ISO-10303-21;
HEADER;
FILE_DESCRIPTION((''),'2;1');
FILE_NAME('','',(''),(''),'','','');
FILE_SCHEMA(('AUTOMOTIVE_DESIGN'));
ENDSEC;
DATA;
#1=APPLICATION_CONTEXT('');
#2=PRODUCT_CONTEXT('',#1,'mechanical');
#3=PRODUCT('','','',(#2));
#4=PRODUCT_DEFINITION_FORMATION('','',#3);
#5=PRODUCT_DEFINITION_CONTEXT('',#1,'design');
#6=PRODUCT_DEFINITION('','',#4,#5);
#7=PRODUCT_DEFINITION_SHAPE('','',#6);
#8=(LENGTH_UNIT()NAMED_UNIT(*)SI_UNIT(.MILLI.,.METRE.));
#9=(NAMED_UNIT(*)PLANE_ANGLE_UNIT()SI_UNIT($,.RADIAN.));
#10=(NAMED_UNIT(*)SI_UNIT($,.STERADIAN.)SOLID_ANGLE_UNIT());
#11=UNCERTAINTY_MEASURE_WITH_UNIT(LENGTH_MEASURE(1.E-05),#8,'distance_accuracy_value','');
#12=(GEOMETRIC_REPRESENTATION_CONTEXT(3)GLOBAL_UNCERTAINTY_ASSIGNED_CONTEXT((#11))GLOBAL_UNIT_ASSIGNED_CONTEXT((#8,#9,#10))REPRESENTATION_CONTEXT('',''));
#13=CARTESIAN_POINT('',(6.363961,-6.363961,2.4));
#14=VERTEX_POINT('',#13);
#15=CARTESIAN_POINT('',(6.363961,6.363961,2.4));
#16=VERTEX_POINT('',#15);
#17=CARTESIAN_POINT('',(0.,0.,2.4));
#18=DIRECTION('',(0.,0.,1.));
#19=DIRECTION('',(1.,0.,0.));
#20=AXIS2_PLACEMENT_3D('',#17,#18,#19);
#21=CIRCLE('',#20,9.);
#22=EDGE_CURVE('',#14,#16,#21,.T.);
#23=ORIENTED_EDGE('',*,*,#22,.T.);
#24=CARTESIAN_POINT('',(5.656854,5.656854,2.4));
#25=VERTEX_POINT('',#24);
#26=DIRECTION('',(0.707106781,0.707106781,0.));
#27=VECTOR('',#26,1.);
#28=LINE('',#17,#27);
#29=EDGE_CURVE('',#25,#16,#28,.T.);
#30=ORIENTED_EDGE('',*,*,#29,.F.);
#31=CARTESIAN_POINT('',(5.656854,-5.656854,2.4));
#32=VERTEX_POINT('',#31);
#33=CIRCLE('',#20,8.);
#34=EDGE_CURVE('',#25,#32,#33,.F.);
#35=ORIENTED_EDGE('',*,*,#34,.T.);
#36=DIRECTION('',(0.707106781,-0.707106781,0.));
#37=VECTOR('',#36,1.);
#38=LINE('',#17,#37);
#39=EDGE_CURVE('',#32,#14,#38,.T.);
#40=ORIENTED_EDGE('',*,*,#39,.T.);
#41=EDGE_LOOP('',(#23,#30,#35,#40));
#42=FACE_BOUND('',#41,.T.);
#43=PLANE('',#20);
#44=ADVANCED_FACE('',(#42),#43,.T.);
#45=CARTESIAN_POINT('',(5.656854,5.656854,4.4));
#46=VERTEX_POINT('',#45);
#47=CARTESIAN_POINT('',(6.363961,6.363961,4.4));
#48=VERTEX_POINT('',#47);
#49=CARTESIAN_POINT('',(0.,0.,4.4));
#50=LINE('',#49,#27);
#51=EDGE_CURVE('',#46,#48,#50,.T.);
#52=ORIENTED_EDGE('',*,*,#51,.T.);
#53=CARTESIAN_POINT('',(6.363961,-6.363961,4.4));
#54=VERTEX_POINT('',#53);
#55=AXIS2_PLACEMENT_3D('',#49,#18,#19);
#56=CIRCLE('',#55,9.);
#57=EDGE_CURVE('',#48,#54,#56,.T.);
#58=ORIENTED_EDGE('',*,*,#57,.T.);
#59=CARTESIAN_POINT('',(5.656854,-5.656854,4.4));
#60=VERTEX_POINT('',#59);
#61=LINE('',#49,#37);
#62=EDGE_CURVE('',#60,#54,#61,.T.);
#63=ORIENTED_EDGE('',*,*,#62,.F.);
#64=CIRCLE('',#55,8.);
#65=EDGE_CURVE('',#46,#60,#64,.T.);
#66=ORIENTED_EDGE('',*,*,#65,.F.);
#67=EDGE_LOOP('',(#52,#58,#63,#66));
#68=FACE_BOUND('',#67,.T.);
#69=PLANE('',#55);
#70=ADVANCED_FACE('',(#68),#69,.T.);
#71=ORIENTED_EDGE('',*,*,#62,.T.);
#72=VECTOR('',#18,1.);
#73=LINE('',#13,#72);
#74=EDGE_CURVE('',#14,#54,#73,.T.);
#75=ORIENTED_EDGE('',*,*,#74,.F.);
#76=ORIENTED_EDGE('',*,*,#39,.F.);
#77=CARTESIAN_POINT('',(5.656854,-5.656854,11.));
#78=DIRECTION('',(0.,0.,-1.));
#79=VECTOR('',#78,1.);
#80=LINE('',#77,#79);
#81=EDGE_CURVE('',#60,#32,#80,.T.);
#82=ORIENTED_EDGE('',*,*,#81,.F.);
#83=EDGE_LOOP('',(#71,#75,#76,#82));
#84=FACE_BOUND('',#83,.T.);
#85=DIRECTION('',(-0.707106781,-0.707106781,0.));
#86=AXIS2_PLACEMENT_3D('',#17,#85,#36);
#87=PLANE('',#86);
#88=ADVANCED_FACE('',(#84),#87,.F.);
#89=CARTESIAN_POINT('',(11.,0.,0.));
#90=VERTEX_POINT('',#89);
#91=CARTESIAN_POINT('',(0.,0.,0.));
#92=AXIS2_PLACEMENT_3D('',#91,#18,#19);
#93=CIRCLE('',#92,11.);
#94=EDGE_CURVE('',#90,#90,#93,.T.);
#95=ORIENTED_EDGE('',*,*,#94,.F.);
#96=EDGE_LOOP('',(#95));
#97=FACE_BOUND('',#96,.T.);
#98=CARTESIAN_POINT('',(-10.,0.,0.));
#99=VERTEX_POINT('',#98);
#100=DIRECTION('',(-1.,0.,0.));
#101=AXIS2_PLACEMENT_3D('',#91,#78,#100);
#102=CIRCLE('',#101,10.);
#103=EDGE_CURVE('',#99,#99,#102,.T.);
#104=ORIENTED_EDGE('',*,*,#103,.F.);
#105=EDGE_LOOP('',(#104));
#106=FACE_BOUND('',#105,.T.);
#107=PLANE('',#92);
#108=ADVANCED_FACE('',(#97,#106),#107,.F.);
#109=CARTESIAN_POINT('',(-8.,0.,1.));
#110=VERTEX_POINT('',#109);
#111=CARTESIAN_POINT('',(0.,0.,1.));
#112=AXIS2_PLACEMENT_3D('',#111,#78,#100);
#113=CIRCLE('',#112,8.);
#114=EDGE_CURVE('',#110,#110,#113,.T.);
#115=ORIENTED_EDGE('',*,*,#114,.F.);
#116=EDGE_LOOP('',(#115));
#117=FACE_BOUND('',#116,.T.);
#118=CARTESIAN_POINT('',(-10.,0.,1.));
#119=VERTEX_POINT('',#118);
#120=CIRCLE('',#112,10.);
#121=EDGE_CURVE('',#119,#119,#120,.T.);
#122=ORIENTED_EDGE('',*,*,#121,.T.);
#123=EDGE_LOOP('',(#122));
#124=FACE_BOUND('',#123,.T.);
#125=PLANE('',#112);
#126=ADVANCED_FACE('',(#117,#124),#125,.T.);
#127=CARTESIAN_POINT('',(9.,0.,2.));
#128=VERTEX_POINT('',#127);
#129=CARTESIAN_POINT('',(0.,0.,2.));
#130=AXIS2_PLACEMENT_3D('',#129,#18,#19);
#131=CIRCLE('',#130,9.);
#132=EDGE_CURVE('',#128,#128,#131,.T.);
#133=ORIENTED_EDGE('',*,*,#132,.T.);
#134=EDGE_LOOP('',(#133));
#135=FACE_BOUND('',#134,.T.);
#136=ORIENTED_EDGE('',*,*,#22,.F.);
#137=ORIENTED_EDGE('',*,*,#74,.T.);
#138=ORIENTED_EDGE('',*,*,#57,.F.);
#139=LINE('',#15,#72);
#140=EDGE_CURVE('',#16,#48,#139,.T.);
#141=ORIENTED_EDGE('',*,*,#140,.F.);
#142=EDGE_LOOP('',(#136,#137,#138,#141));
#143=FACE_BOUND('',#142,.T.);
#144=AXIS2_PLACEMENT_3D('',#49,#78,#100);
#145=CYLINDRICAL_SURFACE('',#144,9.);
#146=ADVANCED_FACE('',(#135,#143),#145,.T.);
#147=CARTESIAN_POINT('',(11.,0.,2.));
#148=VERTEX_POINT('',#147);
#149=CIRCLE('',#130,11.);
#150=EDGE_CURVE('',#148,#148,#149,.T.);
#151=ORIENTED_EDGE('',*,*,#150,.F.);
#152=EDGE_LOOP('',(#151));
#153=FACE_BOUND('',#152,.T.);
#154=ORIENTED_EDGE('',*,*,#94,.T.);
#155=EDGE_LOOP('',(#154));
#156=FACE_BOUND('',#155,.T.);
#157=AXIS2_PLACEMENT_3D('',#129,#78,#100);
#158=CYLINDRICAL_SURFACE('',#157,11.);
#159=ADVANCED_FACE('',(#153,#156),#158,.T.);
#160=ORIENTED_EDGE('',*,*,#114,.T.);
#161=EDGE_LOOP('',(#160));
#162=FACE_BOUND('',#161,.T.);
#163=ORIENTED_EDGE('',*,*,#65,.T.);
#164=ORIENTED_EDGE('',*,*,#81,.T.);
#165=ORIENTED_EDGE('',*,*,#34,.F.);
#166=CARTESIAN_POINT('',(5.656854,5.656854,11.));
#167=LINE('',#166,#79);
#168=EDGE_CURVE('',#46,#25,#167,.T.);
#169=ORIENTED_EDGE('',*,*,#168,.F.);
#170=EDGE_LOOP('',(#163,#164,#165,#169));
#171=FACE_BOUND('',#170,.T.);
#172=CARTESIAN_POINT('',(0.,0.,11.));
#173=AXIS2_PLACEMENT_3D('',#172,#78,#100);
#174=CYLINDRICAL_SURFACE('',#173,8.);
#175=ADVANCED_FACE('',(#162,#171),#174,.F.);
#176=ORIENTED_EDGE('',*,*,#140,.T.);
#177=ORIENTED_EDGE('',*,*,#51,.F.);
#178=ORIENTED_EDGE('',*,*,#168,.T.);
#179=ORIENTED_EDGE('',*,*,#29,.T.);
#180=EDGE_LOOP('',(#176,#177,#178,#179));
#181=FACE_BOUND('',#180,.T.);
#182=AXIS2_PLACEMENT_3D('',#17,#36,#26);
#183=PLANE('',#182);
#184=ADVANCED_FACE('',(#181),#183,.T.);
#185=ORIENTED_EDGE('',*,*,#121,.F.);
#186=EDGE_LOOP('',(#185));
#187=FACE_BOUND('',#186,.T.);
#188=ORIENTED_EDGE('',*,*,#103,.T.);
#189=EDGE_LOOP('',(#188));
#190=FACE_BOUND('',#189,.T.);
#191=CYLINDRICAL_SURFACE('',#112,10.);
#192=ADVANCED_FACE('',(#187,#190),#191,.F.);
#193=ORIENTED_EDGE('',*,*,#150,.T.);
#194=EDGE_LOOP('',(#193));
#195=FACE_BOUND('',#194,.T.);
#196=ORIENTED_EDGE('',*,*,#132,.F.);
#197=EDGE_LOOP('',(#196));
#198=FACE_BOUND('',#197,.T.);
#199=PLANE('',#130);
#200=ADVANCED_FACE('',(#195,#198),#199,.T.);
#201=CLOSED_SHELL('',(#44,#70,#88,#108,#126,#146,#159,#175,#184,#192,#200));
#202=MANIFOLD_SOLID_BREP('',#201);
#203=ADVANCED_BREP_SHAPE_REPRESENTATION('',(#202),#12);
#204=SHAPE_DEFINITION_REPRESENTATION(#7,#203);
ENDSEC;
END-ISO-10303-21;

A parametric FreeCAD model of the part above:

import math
import FreeCAD as App
import Part
import Sketcher

V = App.Vector
Q = App.Units.Quantity

doc = App.newDocument("Part")
body = doc.addObject("PartDesign::Body", "Body")

# Sketch on XY plane
sketch1 = body.newObject("Sketcher::SketchObject", "Sketch")
sketch1.AttachmentSupport = (doc.getObject("XY_Plane"), [""])
sketch1.MapMode = "FlatFace"
sketch1.addGeometry(Part.Circle(V(0, 0, 0), V(0, 0, 1), 11), False)
sketch1.addConstraint(Sketcher.Constraint("Coincident", 0, 3, -1, 1))
sketch1.addConstraint(Sketcher.Constraint("Diameter", 0, Q("22 mm")))
pad1 = body.newObject("PartDesign::Pad", "Pad")
pad1.Profile = sketch1
pad1.Length = 2

# Sketch on XY plane
sketch2 = body.newObject("Sketcher::SketchObject", "Sketch001")
sketch2.AttachmentSupport = (doc.getObject("XY_Plane"), [""])
sketch2.MapMode = "FlatFace"
sketch2.AttachmentOffset = App.Placement(V(0, 0, 2), App.Rotation())
sketch2.addGeometry(Part.Circle(V(0, 0, 0), V(0, 0, 1), 9), False)
sketch2.addConstraint(Sketcher.Constraint("Coincident", 0, 3, -1, 1))
sketch2.addConstraint(Sketcher.Constraint("Diameter", 0, Q("18 mm")))
pad2 = body.newObject("PartDesign::Pad", "Pad001")
pad2.Profile = sketch2
pad2.Length = 2.4

# Sketch on XY plane
sketch3 = body.newObject("Sketcher::SketchObject", "Sketch002")
sketch3.AttachmentSupport = (doc.getObject("XY_Plane"), [""])
sketch3.MapMode = "FlatFace"
sketch3.addGeometry(Part.Circle(V(0, 0, 0), V(0, 0, 1), 10), False)
sketch3.addConstraint(Sketcher.Constraint("Coincident", 0, 3, -1, 1))
sketch3.addConstraint(Sketcher.Constraint("Diameter", 0, Q("20 mm")))
pocket1 = body.newObject("PartDesign::Pocket", "Pocket")
pocket1.Profile = sketch3
pocket1.Length = 1
pocket1.Reversed = True

# Sketch on XY plane
sketch4 = body.newObject("Sketcher::SketchObject", "Sketch003")
sketch4.AttachmentSupport = (doc.getObject("XY_Plane"), [""])
sketch4.MapMode = "FlatFace"
sketch4.AttachmentOffset = App.Placement(V(0, 0, 1), App.Rotation())
sketch4.addGeometry(Part.Circle(V(0, 0, 0), V(0, 0, 1), 8), False)
sketch4.addConstraint(Sketcher.Constraint("Coincident", 0, 3, -1, 1))
sketch4.addConstraint(Sketcher.Constraint("Diameter", 0, Q("16 mm")))
pocket2 = body.newObject("PartDesign::Pocket", "Pocket001")
pocket2.Profile = sketch4
pocket2.Length = 10
pocket2.Reversed = True

# Sketch on XY plane
sketch5 = body.newObject("Sketcher::SketchObject", "Sketch004")
sketch5.AttachmentSupport = (doc.getObject("XY_Plane"), [""])
sketch5.MapMode = "FlatFace"
sketch5.AttachmentOffset = App.Placement(V(0, 0, 4.4), App.Rotation())
sketch5.addGeometry(Part.LineSegment(V(6, 6, 0), V(0, 0, 0)), False)
sketch5.addGeometry(Part.LineSegment(V(0, 0, 0), V(6, -6, 0)), False)
sketch5.addGeometry(Part.ArcOfCircle(Part.Circle(V(0, 0, 0), V(0, 0, 1), 9), math.radians(-45), math.radians(45)), False)
sketch5.addConstraint(Sketcher.Constraint("Coincident", 0, 2, 1, 1))
sketch5.addConstraint(Sketcher.Constraint("Coincident", 1, 2, 2, 1))
sketch5.addConstraint(Sketcher.Constraint("Coincident", 2, 2, 0, 1))
sketch5.addConstraint(Sketcher.Constraint("Coincident", 2, 3, -1, 1))
sketch5.addConstraint(Sketcher.Constraint("Coincident", 0, 2, -1, 1))
sketch5.addConstraint(Sketcher.Constraint("Perpendicular", 0, 1))
sketch5.addConstraint(Sketcher.Constraint("Vertical", 1, 2, 2, 2))
sketch5.addConstraint(Sketcher.Constraint("Radius", 2, Q("9 mm")))
pocket3 = body.newObject("PartDesign::Pocket", "Pocket002")
pocket3.Profile = sketch5
pocket3.Length = 2

doc.recompute()
